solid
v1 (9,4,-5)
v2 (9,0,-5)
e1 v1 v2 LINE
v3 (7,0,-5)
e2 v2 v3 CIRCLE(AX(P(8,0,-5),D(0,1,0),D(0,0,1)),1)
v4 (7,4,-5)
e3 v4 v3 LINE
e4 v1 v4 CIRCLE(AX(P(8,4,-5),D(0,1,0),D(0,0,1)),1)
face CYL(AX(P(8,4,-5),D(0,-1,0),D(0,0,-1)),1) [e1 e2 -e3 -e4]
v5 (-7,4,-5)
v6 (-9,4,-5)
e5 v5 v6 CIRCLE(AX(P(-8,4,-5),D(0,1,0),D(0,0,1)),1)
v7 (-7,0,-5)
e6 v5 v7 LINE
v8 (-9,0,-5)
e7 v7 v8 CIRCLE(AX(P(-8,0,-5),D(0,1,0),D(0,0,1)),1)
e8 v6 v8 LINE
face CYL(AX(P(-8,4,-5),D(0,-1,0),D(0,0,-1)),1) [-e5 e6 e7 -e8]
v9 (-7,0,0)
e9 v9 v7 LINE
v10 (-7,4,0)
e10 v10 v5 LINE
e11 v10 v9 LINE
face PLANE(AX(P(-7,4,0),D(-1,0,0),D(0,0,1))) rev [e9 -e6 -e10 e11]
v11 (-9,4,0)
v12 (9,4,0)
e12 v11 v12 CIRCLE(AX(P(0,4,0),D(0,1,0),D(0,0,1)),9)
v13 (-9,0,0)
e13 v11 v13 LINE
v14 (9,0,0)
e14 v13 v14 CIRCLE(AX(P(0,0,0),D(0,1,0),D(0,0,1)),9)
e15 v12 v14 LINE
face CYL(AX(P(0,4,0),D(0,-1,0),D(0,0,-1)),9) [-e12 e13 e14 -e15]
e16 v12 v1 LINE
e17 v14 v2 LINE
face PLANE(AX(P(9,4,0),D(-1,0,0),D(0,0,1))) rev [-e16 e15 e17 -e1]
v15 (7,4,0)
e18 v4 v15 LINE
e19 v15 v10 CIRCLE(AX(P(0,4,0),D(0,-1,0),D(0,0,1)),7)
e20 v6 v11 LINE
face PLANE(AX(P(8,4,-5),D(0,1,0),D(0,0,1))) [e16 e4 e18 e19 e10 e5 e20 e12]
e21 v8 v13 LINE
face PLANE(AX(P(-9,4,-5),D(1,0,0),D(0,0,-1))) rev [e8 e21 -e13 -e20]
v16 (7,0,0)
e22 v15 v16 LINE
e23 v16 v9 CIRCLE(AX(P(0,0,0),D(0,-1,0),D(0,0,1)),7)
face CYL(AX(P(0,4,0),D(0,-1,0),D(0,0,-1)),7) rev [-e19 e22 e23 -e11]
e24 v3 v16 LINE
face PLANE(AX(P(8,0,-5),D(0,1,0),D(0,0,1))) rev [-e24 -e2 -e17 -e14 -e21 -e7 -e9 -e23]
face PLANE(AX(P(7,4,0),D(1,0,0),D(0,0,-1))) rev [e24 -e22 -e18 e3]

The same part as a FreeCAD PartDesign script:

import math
import FreeCAD as App
import Part
import Sketcher

V = App.Vector

doc = App.newDocument("Part")
body = doc.addObject("PartDesign::Body", "Body")

sketch1 = body.newObject("Sketcher::SketchObject", "Sketch")
sketch1.AttachmentSupport = (doc.getObject("XZ_Plane"), [""])
sketch1.MapMode = "FlatFace"
sketch1.addGeometry(Part.LineSegment(V(-9, -5, 0), V(-9, 0, 0)), False)
sketch1.addGeometry(Part.ArcOfCircle(Part.Circle(V(0, 0, 0), V(0, 0, 1), 9), math.radians(0), math.radians(180)), False)
sketch1.addGeometry(Part.LineSegment(V(9, 0, 0), V(9, -5, 0)), False)
sketch1.addGeometry(Part.ArcOfCircle(Part.Circle(V(8, -5, 0), V(0, 0, 1), 1), math.radians(180), math.radians(360)), False)
sketch1.addGeometry(Part.LineSegment(V(7, -5, 0), V(7, 0, 0)), False)
sketch1.addGeometry(Part.ArcOfCircle(Part.Circle(V(0, 0, 0), V(0, 0, 1), 7), math.radians(0), math.radians(180)), False)
sketch1.addGeometry(Part.LineSegment(V(-7, 0, 0), V(-7, -5, 0)), False)
sketch1.addGeometry(Part.ArcOfCircle(Part.Circle(V(-8, -5, 0), V(0, 0, 1), 1), math.radians(180), math.radians(360)), False)
sketch1.addConstraint(Sketcher.Constraint("Tangent", 0, 2, 1, 2))
sketch1.addConstraint(Sketcher.Constraint("Tangent", 1, 1, 2, 1))
sketch1.addConstraint(Sketcher.Constraint("Tangent", 2, 2, 3, 2))
sketch1.addConstraint(Sketcher.Constraint("Tangent", 3, 1, 4, 1))
sketch1.addConstraint(Sketcher.Constraint("Tangent", 4, 2, 5, 1))
sketch1.addConstraint(Sketcher.Constraint("Tangent", 5, 2, 6, 1))
sketch1.addConstraint(Sketcher.Constraint("Tangent", 6, 2, 7, 2))
sketch1.addConstraint(Sketcher.Constraint("Tangent", 7, 1, 0, 1))
sketch1.addConstraint(Sketcher.Constraint("Vertical", 0))
sketch1.addConstraint(Sketcher.Constraint("Vertical", 2))
sketch1.addConstraint(Sketcher.Constraint("Vertical", 4))
sketch1.addConstraint(Sketcher.Constraint("Vertical", 6))
sketch1.addConstraint(Sketcher.Constraint("Coincident", 1, 3, -1, 1))
sketch1.addConstraint(Sketcher.Constraint("Coincident", 5, 3, -1, 1))
sketch1.addConstraint(Sketcher.Constraint("Horizontal", 3, 3, 7, 3))
sketch1.addConstraint(Sketcher.Constraint("Radius", 1, 9.0))
sketch1.addConstraint(Sketcher.Constraint("Radius", 3, 1.0))
sketch1.addConstraint(Sketcher.Constraint("DistanceY", 0, 1, 0, 2, 5.0))
pad1 = body.newObject("PartDesign::Pad", "Pad")
pad1.Profile = sketch1
pad1.Length = 4
pad1.Reversed = True

doc.recompute()
